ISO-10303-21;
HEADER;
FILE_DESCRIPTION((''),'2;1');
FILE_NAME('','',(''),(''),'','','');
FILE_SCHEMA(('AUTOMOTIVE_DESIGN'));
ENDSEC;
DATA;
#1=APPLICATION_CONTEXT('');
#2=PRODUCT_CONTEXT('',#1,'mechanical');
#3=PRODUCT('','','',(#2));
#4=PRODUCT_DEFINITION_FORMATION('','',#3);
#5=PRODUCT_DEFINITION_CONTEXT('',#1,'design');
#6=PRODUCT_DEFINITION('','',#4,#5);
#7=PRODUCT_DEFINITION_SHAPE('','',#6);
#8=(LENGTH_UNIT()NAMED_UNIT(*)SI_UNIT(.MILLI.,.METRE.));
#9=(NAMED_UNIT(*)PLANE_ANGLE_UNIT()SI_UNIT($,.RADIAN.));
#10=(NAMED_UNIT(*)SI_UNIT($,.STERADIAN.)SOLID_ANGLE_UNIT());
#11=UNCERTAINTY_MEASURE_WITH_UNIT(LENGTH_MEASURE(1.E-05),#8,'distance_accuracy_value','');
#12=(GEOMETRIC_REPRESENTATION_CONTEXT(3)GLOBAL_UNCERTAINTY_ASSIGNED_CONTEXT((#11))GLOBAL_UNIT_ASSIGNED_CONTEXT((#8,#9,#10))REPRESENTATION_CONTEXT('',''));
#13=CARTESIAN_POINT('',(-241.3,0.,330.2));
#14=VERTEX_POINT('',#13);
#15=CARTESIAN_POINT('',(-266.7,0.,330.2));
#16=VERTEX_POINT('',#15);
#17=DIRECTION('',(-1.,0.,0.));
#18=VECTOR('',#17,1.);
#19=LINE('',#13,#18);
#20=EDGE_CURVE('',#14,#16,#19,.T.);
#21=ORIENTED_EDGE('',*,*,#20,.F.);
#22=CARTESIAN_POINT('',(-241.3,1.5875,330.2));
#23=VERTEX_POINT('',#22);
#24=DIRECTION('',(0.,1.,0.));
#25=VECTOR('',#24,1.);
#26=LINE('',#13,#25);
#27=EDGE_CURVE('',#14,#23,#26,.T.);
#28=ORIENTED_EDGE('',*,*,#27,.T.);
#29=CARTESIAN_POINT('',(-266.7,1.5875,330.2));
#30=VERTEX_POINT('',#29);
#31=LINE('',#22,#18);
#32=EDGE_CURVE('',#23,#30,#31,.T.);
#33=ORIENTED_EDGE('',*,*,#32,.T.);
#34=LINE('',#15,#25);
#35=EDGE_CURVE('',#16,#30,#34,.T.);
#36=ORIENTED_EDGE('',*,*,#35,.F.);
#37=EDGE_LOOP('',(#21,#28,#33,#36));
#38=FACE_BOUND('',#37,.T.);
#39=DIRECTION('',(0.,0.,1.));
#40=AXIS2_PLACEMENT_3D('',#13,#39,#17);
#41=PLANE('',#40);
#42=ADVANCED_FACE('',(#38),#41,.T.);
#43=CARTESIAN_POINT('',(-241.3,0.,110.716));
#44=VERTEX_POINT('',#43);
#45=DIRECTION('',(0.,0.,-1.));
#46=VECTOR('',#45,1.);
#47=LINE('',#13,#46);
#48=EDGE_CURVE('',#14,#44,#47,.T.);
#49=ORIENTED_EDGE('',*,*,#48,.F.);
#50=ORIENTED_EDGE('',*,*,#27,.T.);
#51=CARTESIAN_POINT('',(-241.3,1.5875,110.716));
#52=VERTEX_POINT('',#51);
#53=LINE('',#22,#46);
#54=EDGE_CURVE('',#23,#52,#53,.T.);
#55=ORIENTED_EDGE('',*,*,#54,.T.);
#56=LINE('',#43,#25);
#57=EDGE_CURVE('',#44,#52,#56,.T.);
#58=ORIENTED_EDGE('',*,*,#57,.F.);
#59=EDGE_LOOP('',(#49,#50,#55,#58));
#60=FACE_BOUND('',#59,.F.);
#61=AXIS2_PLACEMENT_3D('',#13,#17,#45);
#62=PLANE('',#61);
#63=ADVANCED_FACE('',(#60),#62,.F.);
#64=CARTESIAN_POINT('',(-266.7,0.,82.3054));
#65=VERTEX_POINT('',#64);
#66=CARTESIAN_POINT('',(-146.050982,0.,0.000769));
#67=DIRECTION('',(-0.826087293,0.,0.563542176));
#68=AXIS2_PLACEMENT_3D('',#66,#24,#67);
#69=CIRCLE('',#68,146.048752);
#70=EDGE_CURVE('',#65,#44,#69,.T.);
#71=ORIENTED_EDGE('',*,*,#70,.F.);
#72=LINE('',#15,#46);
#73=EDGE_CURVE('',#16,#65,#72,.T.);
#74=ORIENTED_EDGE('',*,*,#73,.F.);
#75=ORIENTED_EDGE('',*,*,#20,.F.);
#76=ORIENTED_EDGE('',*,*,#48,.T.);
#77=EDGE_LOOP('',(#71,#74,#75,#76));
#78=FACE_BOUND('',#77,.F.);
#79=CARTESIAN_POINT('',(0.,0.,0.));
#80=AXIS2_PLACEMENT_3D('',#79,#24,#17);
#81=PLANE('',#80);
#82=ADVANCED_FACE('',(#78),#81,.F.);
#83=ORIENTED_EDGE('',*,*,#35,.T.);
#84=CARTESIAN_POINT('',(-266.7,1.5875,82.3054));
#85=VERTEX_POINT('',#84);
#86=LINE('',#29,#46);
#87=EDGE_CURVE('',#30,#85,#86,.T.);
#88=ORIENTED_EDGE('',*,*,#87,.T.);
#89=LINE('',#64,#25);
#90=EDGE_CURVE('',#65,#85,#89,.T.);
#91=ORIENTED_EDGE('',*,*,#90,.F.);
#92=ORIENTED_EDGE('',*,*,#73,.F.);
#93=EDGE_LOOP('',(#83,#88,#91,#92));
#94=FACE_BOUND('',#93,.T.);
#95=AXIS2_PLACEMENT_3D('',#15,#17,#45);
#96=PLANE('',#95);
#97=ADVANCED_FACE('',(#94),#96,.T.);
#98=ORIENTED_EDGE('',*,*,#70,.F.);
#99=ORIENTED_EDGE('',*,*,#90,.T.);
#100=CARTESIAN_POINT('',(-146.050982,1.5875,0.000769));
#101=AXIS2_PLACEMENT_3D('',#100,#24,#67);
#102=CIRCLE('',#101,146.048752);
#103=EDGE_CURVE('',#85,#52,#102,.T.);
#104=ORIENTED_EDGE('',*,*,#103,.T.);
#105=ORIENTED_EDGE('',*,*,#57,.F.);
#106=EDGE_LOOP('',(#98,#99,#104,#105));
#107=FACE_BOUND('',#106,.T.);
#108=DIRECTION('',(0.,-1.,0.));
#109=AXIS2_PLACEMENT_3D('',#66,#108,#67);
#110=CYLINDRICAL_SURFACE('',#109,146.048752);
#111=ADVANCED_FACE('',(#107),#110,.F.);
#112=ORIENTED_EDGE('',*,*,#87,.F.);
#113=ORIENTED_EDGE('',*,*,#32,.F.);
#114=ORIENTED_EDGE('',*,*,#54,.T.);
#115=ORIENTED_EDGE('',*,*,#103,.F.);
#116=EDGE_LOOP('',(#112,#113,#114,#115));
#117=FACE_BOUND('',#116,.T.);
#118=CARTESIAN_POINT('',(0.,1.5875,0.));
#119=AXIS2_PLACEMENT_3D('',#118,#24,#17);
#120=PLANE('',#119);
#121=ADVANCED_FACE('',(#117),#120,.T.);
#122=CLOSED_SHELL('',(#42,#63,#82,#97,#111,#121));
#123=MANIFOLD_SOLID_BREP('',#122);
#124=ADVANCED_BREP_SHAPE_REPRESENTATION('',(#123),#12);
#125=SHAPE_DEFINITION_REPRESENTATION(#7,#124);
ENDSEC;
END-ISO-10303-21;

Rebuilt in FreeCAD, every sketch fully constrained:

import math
import FreeCAD as App
import Part
import Sketcher

V = App.Vector
Q = App.Units.Quantity

doc = App.newDocument("Part")
params = doc.addObject("Spreadsheet::Sheet", "Params")
for row, (alias, value) in enumerate([
    ("sketch1_width", "1 in"),
    ("pad1_length", "0.0625 in"),
], start=1):
    params.set(f"A{row}", alias)
    params.set(f"B{row}", "=" + value)
    params.setAlias(f"B{row}", alias)

body = doc.addObject("PartDesign::Body", "Body")

sketch1 = body.newObject("Sketcher::SketchObject", "Sketch")
sketch1.AttachmentSupport = (doc.getObject("XZ_Plane"), [""])
sketch1.MapMode = "FlatFace"
sketch1.addGeometry(Part.LineSegment(V(-267, 330, 0), V(-241, 330, 0)), False)
sketch1.addGeometry(Part.LineSegment(V(-241, 330, 0), V(-241, 111, 0)), False)
sketch1.addGeometry(Part.ArcOfCircle(Part.Circle(V(-146, 0, 0), V(0, 0, 1), 146), math.radians(130.71), math.radians(145.7)), False)
sketch1.addGeometry(Part.LineSegment(V(-267, 82, 0), V(-267, 330, 0)), False)
sketch1.addConstraint(Sketcher.Constraint("Coincident", 0, 2, 1, 1))
sketch1.addConstraint(Sketcher.Constraint("Coincident", 1, 2, 2, 1))
sketch1.addConstraint(Sketcher.Constraint("Coincident", 2, 2, 3, 1))
sketch1.addConstraint(Sketcher.Constraint("Coincident", 3, 2, 0, 1))
sketch1.addConstraint(Sketcher.Constraint("Horizontal", 0))
sketch1.addConstraint(Sketcher.Constraint("Vertical", 1))
sketch1.addConstraint(Sketcher.Constraint("Vertical", 3))
sketch1.addConstraint(Sketcher.Constraint("DistanceX", 0, 1, 0, 2, Q("1 in")))
sketch1.addConstraint(Sketcher.Constraint("DistanceY", -1, 1, 0, 2, Q("13 in")))
sketch1.addConstraint(Sketcher.Constraint("DistanceX", 0, 2, -1, 1, Q("9.5 in")))
sketch1.addConstraint(Sketcher.Constraint("Radius", 2, Q("146.0488 mm")))
sketch1.addConstraint(Sketcher.Constraint("DistanceY", 1, 2, 1, 1, Q("8.6411 in")))
sketch1.addConstraint(Sketcher.Constraint("DistanceY", 3, 1, 3, 2, Q("247.8946 mm")))
sketch1.setExpression("Constraints[7]", "Params.sketch1_width")
pad1 = body.newObject("PartDesign::Pad", "Pad")
pad1.Profile = sketch1
pad1.setExpression("Length", "Params.pad1_length")
pad1.Reversed = True

doc.recompute()
